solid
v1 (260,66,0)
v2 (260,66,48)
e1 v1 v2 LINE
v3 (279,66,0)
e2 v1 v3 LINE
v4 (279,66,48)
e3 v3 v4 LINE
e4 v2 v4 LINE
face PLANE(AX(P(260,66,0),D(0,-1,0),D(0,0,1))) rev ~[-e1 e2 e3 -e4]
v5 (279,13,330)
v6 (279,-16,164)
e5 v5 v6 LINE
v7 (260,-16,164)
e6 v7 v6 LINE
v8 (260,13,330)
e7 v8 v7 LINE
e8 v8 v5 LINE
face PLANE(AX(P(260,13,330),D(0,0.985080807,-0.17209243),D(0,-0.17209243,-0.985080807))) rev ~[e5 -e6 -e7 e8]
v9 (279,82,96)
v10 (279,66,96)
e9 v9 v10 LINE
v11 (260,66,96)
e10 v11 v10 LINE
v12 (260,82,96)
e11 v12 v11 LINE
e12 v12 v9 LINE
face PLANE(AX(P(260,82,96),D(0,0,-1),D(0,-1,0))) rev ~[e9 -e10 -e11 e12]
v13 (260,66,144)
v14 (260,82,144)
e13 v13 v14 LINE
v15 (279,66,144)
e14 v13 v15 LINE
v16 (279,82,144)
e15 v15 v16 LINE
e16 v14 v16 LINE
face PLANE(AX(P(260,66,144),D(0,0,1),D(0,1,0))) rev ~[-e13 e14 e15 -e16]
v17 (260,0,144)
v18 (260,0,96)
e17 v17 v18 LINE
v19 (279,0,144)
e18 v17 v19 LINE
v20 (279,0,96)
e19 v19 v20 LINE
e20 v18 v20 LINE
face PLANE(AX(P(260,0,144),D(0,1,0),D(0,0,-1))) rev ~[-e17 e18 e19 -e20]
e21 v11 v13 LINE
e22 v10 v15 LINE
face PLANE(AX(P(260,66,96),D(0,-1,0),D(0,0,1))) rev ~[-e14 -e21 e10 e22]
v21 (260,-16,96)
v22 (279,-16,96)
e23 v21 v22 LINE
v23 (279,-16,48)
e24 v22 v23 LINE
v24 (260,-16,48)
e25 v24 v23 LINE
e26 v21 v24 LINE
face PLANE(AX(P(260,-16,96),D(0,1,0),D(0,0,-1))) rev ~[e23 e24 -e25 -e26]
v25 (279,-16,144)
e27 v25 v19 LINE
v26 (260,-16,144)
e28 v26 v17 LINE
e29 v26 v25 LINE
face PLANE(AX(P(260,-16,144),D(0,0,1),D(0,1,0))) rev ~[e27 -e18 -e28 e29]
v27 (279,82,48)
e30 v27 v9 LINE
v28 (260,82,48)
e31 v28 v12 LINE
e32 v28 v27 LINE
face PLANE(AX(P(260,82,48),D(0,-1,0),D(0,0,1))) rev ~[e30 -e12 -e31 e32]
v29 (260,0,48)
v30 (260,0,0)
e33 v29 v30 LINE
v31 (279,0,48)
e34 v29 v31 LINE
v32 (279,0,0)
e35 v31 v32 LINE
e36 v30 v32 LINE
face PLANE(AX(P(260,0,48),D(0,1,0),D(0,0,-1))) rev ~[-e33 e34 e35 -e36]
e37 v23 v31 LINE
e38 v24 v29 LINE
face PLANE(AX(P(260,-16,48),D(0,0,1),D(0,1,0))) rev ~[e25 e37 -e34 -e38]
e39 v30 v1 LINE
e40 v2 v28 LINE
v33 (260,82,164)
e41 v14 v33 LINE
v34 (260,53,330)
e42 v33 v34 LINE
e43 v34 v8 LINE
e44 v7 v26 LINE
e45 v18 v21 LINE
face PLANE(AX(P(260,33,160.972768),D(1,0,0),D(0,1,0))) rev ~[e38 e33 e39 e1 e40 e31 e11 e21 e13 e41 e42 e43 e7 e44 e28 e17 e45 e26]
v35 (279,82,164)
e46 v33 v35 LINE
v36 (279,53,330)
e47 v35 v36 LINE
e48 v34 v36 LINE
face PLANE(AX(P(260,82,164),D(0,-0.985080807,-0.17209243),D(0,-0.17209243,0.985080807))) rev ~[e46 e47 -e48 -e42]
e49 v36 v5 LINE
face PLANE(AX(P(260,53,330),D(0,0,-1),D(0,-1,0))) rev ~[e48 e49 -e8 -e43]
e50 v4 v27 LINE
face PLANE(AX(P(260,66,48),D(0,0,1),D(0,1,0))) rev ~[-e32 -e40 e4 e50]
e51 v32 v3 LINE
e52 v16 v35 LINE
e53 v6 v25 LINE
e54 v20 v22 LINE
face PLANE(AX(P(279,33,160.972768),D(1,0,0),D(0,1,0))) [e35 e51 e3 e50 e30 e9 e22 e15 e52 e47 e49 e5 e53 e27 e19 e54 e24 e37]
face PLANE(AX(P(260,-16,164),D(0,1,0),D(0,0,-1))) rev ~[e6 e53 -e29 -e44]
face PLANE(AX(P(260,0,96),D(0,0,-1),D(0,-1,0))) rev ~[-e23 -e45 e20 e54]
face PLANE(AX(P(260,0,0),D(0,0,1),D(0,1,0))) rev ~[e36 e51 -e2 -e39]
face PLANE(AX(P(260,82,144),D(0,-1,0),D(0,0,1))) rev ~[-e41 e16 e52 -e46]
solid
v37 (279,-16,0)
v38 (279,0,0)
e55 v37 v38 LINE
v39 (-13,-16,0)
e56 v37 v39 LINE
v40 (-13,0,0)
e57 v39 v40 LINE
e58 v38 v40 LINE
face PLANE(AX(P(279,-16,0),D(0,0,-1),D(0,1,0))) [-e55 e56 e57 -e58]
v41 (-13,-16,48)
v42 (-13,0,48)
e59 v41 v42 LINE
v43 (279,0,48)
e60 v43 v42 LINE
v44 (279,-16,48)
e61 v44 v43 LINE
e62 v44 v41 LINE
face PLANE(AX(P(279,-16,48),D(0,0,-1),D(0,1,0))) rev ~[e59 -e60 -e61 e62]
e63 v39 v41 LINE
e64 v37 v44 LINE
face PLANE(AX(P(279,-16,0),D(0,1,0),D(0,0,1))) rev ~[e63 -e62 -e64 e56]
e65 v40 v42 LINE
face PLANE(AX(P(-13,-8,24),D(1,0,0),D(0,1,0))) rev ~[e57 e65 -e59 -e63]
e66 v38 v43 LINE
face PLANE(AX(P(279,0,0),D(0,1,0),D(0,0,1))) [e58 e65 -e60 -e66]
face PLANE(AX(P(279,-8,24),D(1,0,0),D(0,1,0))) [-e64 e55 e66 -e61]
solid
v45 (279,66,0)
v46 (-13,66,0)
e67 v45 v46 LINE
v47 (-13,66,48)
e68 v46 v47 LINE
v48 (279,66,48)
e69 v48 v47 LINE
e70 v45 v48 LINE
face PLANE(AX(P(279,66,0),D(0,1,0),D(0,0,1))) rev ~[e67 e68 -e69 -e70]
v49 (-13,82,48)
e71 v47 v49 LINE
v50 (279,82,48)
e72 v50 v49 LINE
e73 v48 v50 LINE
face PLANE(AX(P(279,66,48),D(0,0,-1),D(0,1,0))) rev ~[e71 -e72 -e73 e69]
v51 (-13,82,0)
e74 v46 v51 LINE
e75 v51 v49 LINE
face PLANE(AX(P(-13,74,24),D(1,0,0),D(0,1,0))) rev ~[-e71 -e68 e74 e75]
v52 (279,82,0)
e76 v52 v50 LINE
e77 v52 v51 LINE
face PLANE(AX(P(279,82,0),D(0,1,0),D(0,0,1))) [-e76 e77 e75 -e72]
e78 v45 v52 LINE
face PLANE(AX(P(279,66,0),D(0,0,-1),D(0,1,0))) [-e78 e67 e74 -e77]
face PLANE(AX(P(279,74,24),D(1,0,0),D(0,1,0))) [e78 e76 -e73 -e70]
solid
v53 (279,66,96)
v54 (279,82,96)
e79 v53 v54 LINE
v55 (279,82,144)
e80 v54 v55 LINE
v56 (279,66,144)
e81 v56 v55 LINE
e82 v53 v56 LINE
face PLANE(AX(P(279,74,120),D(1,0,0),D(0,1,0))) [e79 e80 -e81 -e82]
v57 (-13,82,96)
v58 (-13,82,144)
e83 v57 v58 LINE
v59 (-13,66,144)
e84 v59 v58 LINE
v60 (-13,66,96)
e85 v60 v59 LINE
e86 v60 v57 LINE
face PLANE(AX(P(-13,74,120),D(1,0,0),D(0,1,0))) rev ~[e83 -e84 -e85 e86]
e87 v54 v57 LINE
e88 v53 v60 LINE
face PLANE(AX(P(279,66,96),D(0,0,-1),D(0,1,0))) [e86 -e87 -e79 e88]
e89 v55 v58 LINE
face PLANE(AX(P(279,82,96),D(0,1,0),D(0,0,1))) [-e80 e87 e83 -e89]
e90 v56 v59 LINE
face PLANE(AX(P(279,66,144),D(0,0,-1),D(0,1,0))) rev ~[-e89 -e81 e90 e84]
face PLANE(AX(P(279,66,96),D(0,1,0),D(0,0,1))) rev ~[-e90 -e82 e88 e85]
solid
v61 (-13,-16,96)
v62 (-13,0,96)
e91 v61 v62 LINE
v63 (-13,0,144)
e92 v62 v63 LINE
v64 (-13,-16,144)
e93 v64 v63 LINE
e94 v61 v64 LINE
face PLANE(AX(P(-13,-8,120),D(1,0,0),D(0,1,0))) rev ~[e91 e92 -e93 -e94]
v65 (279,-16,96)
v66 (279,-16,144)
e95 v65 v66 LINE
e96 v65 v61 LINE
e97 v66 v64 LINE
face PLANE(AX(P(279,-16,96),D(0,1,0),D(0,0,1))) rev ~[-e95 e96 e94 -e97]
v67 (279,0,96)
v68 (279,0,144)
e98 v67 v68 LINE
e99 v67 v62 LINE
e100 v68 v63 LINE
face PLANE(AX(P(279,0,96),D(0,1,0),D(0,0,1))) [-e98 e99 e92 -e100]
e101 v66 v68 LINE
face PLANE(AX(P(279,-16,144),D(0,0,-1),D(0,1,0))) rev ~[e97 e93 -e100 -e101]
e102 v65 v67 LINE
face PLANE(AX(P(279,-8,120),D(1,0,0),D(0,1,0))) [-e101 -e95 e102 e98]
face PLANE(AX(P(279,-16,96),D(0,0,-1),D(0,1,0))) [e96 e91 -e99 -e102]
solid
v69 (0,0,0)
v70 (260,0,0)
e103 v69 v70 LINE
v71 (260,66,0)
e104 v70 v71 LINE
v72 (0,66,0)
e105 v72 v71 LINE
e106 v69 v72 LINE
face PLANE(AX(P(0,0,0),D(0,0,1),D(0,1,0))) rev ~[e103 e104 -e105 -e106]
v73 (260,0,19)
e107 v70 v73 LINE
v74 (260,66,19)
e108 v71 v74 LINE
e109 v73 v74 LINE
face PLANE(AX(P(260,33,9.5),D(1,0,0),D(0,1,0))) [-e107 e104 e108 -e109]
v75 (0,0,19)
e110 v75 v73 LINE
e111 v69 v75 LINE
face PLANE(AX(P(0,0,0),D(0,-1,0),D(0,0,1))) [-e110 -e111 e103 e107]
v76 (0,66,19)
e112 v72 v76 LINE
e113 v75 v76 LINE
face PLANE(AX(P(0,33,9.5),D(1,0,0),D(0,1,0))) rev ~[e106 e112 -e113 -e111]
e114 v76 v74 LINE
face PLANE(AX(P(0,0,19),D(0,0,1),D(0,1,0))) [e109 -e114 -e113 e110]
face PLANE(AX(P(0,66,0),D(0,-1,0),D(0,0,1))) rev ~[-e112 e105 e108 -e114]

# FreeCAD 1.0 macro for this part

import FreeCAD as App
import Part
import Sketcher

doc = App.newDocument("Part")
body = doc.addObject("PartDesign::Body", "Body")

sketch1 = body.newObject("Sketcher::SketchObject", "Sketch")
sketch1.AttachmentSupport = (doc.getObject("YZ_Plane"), [""])
sketch1.MapMode = "FlatFace"
sketch1.addGeometry([
    Part.LineSegment(App.Vector(0, 19, 0), App.Vector(0, 0, 0)),
    Part.LineSegment(App.Vector(0, 0, 0), App.Vector(66, 0, 0)),
    Part.LineSegment(App.Vector(66, 0, 0), App.Vector(66, 19, 0)),
    Part.LineSegment(App.Vector(66, 19, 0), App.Vector(0, 19, 0)),
], False)
sketch1.addConstraint([
    Sketcher.Constraint("Coincident", 0, 2, 1, 1),
    Sketcher.Constraint("Coincident", 1, 2, 2, 1),
    Sketcher.Constraint("Coincident", 2, 2, 3, 1),
    Sketcher.Constraint("Coincident", 3, 2, 0, 1),
    Sketcher.Constraint("Vertical", 0),
    Sketcher.Constraint("Horizontal", 1),
    Sketcher.Constraint("Vertical", 2),
    Sketcher.Constraint("Horizontal", 3),
    Sketcher.Constraint("Coincident", 0, 2, -1, 1),
    Sketcher.Constraint("DistanceX", 1, 1, 1, 2, 66.0),
    Sketcher.Constraint("DistanceY", 0, 2, 0, 1, 19.0),
])
pad1 = body.newObject("PartDesign::Pad", "Pad")
pad1.Profile = sketch1
pad1.Length = 260
body2 = doc.addObject("PartDesign::Body", "Body001")

sketch2 = body2.newObject("Sketcher::SketchObject", "Sketch001")
sketch2.AttachmentSupport = (doc.getObject("YZ_Plane001"), [""])
sketch2.MapMode = "FlatFace"
sketch2.AttachmentOffset = App.Placement(App.Vector(0, 0, 260), App.Rotation())
sketch2.addGeometry([
    Part.LineSegment(App.Vector(0, 48, 0), App.Vector(0, 0, 0)),
    Part.LineSegment(App.Vector(0, 0, 0), App.Vector(66, 0, 0)),
    Part.LineSegment(App.Vector(66, 0, 0), App.Vector(66, 48, 0)),
    Part.LineSegment(App.Vector(66, 48, 0), App.Vector(82, 48, 0)),
    Part.LineSegment(App.Vector(82, 48, 0), App.Vector(82, 96, 0)),
    Part.LineSegment(App.Vector(82, 96, 0), App.Vector(66, 96, 0)),
    Part.LineSegment(App.Vector(66, 96, 0), App.Vector(66, 144, 0)),
    Part.LineSegment(App.Vector(66, 144, 0), App.Vector(82, 144, 0)),
    Part.LineSegment(App.Vector(82, 144, 0), App.Vector(82, 164, 0)),
    Part.LineSegment(App.Vector(82, 164, 0), App.Vector(53, 330, 0)),
    Part.LineSegment(App.Vector(53, 330, 0), App.Vector(13, 330, 0)),
    Part.LineSegment(App.Vector(13, 330, 0), App.Vector(-16, 164, 0)),
    Part.LineSegment(App.Vector(-16, 164, 0), App.Vector(-16, 144, 0)),
    Part.LineSegment(App.Vector(-16, 144, 0), App.Vector(0, 144, 0)),
    Part.LineSegment(App.Vector(0, 144, 0), App.Vector(0, 96, 0)),
    Part.LineSegment(App.Vector(0, 96, 0), App.Vector(-16, 96, 0)),
    Part.LineSegment(App.Vector(-16, 96, 0), App.Vector(-16, 48, 0)),
    Part.LineSegment(App.Vector(-16, 48, 0), App.Vector(0, 48, 0)),
], False)
sketch2.addConstraint([
    Sketcher.Constraint("Coincident", 0, 2, 1, 1),
    Sketcher.Constraint("Coincident", 1, 2, 2, 1),
    Sketcher.Constraint("Coincident", 2, 2, 3, 1),
    Sketcher.Constraint("Coincident", 3, 2, 4, 1),
    Sketcher.Constraint("Coincident", 4, 2, 5, 1),
    Sketcher.Constraint("Coincident", 5, 2, 6, 1),
    Sketcher.Constraint("Coincident", 6, 2, 7, 1),
    Sketcher.Constraint("Coincident", 7, 2, 8, 1),
    Sketcher.Constraint("Coincident", 8, 2, 9, 1),
    Sketcher.Constraint("Coincident", 9, 2, 10, 1),
    Sketcher.Constraint("Coincident", 10, 2, 11, 1),
    Sketcher.Constraint("Coincident", 11, 2, 12, 1),
    Sketcher.Constraint("Coincident", 12, 2, 13, 1),
    Sketcher.Constraint("Coincident", 13, 2, 14, 1),
    Sketcher.Constraint("Coincident", 14, 2, 15, 1),
    Sketcher.Constraint("Coincident", 15, 2, 16, 1),
    Sketcher.Constraint("Coincident", 16, 2, 17, 1),
    Sketcher.Constraint("Coincident", 17, 2, 0, 1),
    Sketcher.Constraint("Vertical", 0),
    Sketcher.Constraint("Horizontal", 1),
    Sketcher.Constraint("Vertical", 2),
    Sketcher.Constraint("Horizontal", 3),
    Sketcher.Constraint("Vertical", 4),
    Sketcher.Constraint("Horizontal", 5),
    Sketcher.Constraint("Vertical", 6),
    Sketcher.Constraint("Horizontal", 7),
    Sketcher.Constraint("Vertical", 8),
    Sketcher.Constraint("Horizontal", 10),
    Sketcher.Constraint("Vertical", 12),
    Sketcher.Constraint("Horizontal", 13),
    Sketcher.Constraint("Vertical", 14),
    Sketcher.Constraint("Horizontal", 15),
    Sketcher.Constraint("Vertical", 16),
    Sketcher.Constraint("Horizontal", 17),
    Sketcher.Constraint("Coincident", 0, 2, -1, 1),
    Sketcher.Constraint("PointOnObject", 13, 2, -2),
    Sketcher.Constraint("Horizontal", 8, 2, 11, 2),
    Sketcher.Constraint("Horizontal", 7, 2, 12, 2),
    Sketcher.Constraint("Horizontal", 5, 2, 14, 2),
    Sketcher.Constraint("Horizontal", 3, 2, 16, 2),
    Sketcher.Constraint("Vertical", 2, 2, 5, 2),
    Sketcher.Constraint("Vertical", 4, 2, 7, 2),
    Sketcher.Constraint("Vertical", 12, 2, 15, 2),
    Sketcher.Constraint("Equal", 7, 13),
    Sketcher.Constraint("Equal", 2, 4),
    Sketcher.Constraint("Equal", 4, 6),
    Sketcher.Constraint("Equal", 9, 11),
    Sketcher.Constraint("DistanceX", 1, 1, 1, 2, 66.0),
    Sketcher.Constraint("DistanceX", 3, 1, 3, 2, 16.0),
    Sketcher.Constraint("DistanceX", 10, 2, 10, 1, 40.0),
    Sketcher.Constraint("DistanceY", 0, 2, 0, 1, 48.0),
    Sketcher.Constraint("DistanceY", 8, 1, 8, 2, 20.0),
    Sketcher.Constraint("DistanceY", -1, 1, 9, 2, 330.0),
])
pad2 = body2.newObject("PartDesign::Pad", "Pad001")
pad2.Profile = sketch2
pad2.Length = 19
body3 = doc.addObject("PartDesign::Body", "Body002")
body3.AllowCompound = True

sketch3 = body3.newObject("Sketcher::SketchObject", "Sketch002")
sketch3.AttachmentSupport = (doc.getObject("YZ_Plane002"), [""])
sketch3.MapMode = "FlatFace"
sketch3.AttachmentOffset = App.Placement(App.Vector(0, 0, 279), App.Rotation())
sketch3.addGeometry([
    Part.LineSegment(App.Vector(-16, 48, 0), App.Vector(-16, 0, 0)),
    Part.LineSegment(App.Vector(-16, 0, 0), App.Vector(0, 0, 0)),
    Part.LineSegment(App.Vector(0, 0, 0), App.Vector(0, 48, 0)),
    Part.LineSegment(App.Vector(0, 48, 0), App.Vector(-16, 48, 0)),
    Part.LineSegment(App.Vector(-16, 144, 0), App.Vector(-16, 96, 0)),
    Part.LineSegment(App.Vector(-16, 96, 0), App.Vector(0, 96, 0)),
    Part.LineSegment(App.Vector(0, 96, 0), App.Vector(0, 144, 0)),
    Part.LineSegment(App.Vector(0, 144, 0), App.Vector(-16, 144, 0)),
    Part.LineSegment(App.Vector(66, 144, 0), App.Vector(66, 96, 0)),
    Part.LineSegment(App.Vector(66, 96, 0), App.Vector(82, 96, 0)),
    Part.LineSegment(App.Vector(82, 96, 0), App.Vector(82, 144, 0)),
    Part.LineSegment(App.Vector(82, 144, 0), App.Vector(66, 144, 0)),
    Part.LineSegment(App.Vector(66, 48, 0), App.Vector(66, 0, 0)),
    Part.LineSegment(App.Vector(66, 0, 0), App.Vector(82, 0, 0)),
    Part.LineSegment(App.Vector(82, 0, 0), App.Vector(82, 48, 0)),
    Part.LineSegment(App.Vector(82, 48, 0), App.Vector(66, 48, 0)),
], False)
sketch3.addConstraint([
    Sketcher.Constraint("Coincident", 0, 2, 1, 1),
    Sketcher.Constraint("Coincident", 1, 2, 2, 1),
    Sketcher.Constraint("Coincident", 2, 2, 3, 1),
    Sketcher.Constraint("Coincident", 3, 2, 0, 1),
    Sketcher.Constraint("Coincident", 4, 2, 5, 1),
    Sketcher.Constraint("Coincident", 5, 2, 6, 1),
    Sketcher.Constraint("Coincident", 6, 2, 7, 1),
    Sketcher.Constraint("Coincident", 7, 2, 4, 1),
    Sketcher.Constraint("Coincident", 8, 2, 9, 1),
    Sketcher.Constraint("Coincident", 9, 2, 10, 1),
    Sketcher.Constraint("Coincident", 10, 2, 11, 1),
    Sketcher.Constraint("Coincident", 11, 2, 8, 1),
    Sketcher.Constraint("Coincident", 12, 2, 13, 1),
    Sketcher.Constraint("Coincident", 13, 2, 14, 1),
    Sketcher.Constraint("Coincident", 14, 2, 15, 1),
    Sketcher.Constraint("Coincident", 15, 2, 12, 1),
    Sketcher.Constraint("Vertical", 0),
    Sketcher.Constraint("Horizontal", 1),
    Sketcher.Constraint("Vertical", 2),
    Sketcher.Constraint("Horizontal", 3),
    Sketcher.Constraint("Vertical", 4),
    Sketcher.Constraint("Horizontal", 5),
    Sketcher.Constraint("Vertical", 6),
    Sketcher.Constraint("Horizontal", 7),
    Sketcher.Constraint("Vertical", 8),
    Sketcher.Constraint("Horizontal", 9),
    Sketcher.Constraint("Vertical", 10),
    Sketcher.Constraint("Horizontal", 11),
    Sketcher.Constraint("Vertical", 12),
    Sketcher.Constraint("Horizontal", 13),
    Sketcher.Constraint("Vertical", 14),
    Sketcher.Constraint("Horizontal", 15),
    Sketcher.Constraint("Coincident", 1, 2, -1, 1),
    Sketcher.Constraint("PointOnObject", 5, 2, -2),
    Sketcher.Constraint("PointOnObject", 12, 2, -1),
    Sketcher.Constraint("Horizontal", 5, 2, 8, 2),
    Sketcher.Constraint("Horizontal", 7, 2, 10, 2),
    Sketcher.Constraint("Horizontal", 3, 2, 14, 2),
    Sketcher.Constraint("Vertical", 3, 2, 4, 2),
    Sketcher.Constraint("Vertical", 11, 2, 12, 2),
    Sketcher.Constraint("Vertical", 10, 2, 13, 2),
    Sketcher.Constraint("Equal", 7, 9),
    Sketcher.Constraint("Equal", 2, 4),
    Sketcher.Constraint("DistanceX", 1, 1, 1, 2, 16.0),
    Sketcher.Constraint("DistanceY", 0, 2, 0, 1, 48.0),
    Sketcher.Constraint("DistanceY", -1, 1, 4, 2, 96.0),
    Sketcher.Constraint("DistanceX", -1, 1, 8, 2, 66.0),
])
pad3 = body3.newObject("PartDesign::Pad", "Pad002")
pad3.Profile = sketch3
pad3.Length = 292
pad3.Reversed = True

doc.recompute()
